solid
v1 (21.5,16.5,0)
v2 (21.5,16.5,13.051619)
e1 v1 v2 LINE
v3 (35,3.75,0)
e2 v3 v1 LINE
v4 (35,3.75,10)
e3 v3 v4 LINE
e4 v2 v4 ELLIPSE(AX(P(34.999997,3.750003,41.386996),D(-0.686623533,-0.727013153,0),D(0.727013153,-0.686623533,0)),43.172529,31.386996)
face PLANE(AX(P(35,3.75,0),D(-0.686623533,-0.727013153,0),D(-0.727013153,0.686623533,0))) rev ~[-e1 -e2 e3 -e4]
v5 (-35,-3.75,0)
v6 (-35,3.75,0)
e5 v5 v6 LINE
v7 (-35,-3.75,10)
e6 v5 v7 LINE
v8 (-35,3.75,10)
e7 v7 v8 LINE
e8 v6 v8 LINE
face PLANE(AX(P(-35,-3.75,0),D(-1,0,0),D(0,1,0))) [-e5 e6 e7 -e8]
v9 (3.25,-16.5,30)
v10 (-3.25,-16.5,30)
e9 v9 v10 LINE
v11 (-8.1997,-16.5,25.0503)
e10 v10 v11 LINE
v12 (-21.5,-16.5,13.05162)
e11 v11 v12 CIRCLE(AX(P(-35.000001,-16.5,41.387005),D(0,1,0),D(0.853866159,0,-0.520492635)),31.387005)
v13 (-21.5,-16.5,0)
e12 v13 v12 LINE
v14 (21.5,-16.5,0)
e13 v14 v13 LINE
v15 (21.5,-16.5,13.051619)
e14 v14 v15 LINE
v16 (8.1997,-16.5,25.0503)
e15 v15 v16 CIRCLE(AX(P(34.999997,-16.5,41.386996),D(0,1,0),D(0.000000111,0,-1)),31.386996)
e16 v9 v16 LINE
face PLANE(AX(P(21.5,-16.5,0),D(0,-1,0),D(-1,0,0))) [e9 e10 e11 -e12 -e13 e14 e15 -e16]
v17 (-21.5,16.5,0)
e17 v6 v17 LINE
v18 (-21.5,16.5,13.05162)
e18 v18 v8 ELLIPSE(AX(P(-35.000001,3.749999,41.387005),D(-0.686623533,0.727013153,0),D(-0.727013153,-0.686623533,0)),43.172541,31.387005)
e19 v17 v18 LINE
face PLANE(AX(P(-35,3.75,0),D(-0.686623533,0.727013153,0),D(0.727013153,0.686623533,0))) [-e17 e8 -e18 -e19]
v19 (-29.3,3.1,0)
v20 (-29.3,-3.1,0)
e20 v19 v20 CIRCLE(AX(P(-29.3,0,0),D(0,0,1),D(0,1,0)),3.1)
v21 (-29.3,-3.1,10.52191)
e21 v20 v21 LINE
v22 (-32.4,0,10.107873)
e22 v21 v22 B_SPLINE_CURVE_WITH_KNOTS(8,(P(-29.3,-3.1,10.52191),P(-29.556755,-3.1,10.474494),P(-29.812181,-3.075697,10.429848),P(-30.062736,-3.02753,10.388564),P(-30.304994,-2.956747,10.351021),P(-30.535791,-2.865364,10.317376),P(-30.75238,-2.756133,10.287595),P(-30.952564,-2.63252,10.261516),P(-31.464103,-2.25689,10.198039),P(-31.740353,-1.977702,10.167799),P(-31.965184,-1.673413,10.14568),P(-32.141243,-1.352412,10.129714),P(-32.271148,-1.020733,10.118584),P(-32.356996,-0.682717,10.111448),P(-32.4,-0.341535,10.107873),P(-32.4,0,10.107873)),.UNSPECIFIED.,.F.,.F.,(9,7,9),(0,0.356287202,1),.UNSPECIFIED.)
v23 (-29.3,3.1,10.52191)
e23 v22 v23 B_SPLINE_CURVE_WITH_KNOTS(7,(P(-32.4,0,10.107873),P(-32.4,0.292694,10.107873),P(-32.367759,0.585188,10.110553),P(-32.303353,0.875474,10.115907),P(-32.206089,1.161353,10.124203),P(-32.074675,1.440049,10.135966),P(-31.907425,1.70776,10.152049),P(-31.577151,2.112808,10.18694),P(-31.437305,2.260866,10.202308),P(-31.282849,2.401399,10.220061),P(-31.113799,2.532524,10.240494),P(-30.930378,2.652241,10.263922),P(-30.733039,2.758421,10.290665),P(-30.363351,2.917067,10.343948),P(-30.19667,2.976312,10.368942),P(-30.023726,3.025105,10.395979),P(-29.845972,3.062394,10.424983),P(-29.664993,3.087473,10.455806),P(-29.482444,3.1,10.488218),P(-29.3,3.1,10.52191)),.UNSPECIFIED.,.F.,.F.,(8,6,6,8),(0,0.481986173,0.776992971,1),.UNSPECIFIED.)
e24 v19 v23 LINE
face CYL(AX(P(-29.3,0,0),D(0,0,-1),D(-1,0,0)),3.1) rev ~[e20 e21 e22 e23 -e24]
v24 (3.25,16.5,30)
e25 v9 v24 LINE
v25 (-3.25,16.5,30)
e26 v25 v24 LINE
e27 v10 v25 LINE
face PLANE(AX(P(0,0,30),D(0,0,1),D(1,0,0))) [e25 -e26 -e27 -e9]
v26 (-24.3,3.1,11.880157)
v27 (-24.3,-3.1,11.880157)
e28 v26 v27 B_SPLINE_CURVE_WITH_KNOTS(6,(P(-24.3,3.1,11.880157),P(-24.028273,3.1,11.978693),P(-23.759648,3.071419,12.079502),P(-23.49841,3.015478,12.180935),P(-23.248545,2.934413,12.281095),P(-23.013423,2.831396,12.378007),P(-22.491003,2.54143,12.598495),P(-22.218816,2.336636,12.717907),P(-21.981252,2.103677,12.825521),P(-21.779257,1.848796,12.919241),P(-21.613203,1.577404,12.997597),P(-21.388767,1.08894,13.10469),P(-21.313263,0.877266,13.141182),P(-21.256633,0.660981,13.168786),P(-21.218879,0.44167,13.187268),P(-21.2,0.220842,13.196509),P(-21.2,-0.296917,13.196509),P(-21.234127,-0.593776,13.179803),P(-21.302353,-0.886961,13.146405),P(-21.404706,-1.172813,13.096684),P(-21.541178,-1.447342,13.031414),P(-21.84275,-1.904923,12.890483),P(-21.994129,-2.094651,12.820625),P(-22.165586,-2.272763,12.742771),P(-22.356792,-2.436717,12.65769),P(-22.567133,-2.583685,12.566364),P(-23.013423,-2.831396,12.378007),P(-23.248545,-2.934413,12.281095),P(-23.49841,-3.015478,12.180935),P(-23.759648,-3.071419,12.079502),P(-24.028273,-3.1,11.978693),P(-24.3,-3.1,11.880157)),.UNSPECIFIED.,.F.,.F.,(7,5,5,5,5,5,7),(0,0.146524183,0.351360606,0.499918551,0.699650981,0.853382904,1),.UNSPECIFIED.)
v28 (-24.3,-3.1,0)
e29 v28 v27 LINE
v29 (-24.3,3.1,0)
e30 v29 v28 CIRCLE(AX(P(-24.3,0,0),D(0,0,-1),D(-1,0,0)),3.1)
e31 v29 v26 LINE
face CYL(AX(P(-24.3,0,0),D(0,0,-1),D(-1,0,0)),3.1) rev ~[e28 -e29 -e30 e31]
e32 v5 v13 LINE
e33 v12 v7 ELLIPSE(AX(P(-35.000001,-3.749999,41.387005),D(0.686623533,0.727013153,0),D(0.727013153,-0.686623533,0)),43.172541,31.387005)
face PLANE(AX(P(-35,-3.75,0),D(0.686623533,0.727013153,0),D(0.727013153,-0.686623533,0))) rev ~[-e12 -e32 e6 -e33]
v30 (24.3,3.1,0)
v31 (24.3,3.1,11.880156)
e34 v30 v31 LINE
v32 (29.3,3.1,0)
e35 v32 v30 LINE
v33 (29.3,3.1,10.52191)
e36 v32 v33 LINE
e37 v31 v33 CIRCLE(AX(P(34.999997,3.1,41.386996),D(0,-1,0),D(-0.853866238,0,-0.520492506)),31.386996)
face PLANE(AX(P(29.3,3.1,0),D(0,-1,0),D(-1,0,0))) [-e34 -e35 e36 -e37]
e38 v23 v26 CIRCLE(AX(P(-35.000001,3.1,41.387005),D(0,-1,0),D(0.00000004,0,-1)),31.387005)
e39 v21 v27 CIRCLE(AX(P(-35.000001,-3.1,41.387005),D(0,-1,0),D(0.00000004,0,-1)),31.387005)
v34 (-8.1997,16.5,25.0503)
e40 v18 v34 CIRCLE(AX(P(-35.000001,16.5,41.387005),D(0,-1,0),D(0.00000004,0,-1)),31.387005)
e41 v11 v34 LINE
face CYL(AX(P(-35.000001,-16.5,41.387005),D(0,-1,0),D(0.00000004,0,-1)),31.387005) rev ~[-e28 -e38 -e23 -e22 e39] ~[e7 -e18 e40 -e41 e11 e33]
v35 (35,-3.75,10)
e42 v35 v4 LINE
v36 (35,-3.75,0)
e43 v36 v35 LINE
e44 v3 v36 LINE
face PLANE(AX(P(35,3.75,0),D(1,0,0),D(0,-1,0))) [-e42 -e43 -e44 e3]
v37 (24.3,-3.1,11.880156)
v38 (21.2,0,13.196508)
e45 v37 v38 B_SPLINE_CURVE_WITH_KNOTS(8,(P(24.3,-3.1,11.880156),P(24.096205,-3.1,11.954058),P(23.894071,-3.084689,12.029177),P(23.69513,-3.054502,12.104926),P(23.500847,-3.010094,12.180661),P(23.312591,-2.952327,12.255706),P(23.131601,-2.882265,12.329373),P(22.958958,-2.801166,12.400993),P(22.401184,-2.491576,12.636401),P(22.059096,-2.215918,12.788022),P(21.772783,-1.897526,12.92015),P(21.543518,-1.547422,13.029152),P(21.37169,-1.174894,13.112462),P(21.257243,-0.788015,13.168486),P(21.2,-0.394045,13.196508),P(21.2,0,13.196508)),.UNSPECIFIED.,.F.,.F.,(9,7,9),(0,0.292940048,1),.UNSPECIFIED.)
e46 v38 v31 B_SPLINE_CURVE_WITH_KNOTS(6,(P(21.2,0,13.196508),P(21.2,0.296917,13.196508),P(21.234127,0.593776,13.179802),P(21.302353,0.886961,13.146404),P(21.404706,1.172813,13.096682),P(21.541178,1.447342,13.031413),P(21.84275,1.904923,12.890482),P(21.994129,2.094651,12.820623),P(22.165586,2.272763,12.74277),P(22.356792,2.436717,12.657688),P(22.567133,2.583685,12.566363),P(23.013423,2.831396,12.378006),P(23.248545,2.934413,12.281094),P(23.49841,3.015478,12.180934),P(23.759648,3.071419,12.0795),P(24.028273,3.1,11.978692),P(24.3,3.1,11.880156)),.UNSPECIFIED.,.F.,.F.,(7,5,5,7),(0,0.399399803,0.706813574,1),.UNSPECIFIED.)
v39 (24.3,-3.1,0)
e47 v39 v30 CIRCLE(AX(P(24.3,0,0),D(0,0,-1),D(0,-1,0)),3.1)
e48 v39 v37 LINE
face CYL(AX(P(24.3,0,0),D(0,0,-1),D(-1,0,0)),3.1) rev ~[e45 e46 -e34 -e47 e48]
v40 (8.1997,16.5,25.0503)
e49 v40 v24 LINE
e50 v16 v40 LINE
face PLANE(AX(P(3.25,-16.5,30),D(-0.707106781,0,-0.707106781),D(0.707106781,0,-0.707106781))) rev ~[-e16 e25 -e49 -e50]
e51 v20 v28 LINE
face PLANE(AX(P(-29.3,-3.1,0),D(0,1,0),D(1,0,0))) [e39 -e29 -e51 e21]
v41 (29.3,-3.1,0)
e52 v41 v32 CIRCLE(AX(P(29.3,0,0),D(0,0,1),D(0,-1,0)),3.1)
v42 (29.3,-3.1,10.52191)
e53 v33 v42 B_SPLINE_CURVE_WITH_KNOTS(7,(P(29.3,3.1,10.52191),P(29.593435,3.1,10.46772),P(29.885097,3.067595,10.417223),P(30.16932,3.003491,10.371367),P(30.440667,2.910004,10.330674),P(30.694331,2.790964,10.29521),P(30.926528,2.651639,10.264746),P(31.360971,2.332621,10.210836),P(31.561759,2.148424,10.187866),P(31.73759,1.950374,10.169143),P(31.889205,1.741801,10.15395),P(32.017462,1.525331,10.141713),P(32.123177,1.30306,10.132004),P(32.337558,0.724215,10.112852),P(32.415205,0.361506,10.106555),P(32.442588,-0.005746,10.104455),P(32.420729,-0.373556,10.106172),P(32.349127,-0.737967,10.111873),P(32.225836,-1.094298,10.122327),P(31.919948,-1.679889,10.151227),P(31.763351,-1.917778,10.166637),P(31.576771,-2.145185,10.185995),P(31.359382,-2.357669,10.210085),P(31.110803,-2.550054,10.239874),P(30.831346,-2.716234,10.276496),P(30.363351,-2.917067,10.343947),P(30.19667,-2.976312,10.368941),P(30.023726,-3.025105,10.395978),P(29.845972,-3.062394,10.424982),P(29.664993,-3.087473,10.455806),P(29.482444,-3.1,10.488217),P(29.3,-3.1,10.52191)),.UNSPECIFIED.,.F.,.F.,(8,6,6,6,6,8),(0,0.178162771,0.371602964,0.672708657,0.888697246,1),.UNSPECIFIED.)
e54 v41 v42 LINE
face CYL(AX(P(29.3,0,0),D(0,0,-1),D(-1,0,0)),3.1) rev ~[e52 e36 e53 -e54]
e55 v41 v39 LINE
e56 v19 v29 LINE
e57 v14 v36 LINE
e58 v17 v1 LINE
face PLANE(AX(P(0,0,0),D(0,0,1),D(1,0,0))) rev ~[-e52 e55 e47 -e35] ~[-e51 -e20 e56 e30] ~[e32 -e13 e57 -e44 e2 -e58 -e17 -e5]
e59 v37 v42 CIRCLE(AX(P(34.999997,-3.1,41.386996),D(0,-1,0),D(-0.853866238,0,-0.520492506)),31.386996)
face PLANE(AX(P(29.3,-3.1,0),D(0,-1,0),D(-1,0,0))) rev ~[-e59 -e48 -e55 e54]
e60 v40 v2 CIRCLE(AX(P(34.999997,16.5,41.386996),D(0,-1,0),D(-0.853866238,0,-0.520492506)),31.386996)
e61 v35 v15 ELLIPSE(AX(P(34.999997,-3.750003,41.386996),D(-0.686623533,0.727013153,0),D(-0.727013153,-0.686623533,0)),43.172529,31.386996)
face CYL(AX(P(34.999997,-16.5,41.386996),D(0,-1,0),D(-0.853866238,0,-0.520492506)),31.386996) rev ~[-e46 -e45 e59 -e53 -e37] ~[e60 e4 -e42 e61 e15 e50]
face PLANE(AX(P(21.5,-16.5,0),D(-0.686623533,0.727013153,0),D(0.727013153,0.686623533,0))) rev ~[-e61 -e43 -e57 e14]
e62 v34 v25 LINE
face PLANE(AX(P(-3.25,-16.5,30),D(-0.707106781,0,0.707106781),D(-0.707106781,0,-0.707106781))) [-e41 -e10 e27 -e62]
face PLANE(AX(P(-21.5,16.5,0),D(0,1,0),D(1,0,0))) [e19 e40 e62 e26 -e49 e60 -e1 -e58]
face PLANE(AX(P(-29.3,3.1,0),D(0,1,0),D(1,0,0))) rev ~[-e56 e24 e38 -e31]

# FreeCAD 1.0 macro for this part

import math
import FreeCAD as App
import Part
import Sketcher

V = App.Vector
Q = App.Units.Quantity

doc = App.newDocument("Part")
body = doc.addObject("PartDesign::Body", "Body")

sketch1 = doc.addObject("Sketcher::SketchObject", "Sketch")
body.addObject(sketch1)
sketch1.AttachmentSupport = (doc.XY_Plane, [""])
sketch1.MapMode = "FlatFace"
sketch1.addGeometry([
    Part.LineSegment(V(21.5, -16.5, 0), V(35, -3.75, 0)),
    Part.LineSegment(V(35, -3.75, 0), V(35, 3.75, 0)),
    Part.LineSegment(V(35, 3.75, 0), V(21.5, 16.5, 0)),
    Part.LineSegment(V(21.5, 16.5, 0), V(-21.5, 16.5, 0)),
    Part.LineSegment(V(-21.5, 16.5, 0), V(-35, 3.75, 0)),
    Part.LineSegment(V(-35, 3.75, 0), V(-35, -3.75, 0)),
    Part.LineSegment(V(-35, -3.75, 0), V(-21.5, -16.5, 0)),
    Part.LineSegment(V(-21.5, -16.5, 0), V(21.5, -16.5, 0)),
], False)
sketch1.addConstraint([
    Sketcher.Constraint("Coincident", 0, 2, 1, 1),
    Sketcher.Constraint("Coincident", 1, 2, 2, 1),
    Sketcher.Constraint("Coincident", 2, 2, 3, 1),
    Sketcher.Constraint("Coincident", 3, 2, 4, 1),
    Sketcher.Constraint("Coincident", 4, 2, 5, 1),
    Sketcher.Constraint("Coincident", 5, 2, 6, 1),
    Sketcher.Constraint("Coincident", 6, 2, 7, 1),
    Sketcher.Constraint("Coincident", 7, 2, 0, 1),
    Sketcher.Constraint("Vertical", 1),
    Sketcher.Constraint("Horizontal", 3),
    Sketcher.Constraint("Vertical", 5),
    Sketcher.Constraint("Horizontal", 7),
    Sketcher.Constraint("Symmetric", 0, 2, 4, 2, -1, 1),
    Sketcher.Constraint("Symmetric", 2, 2, 6, 2, -1, 1),
    Sketcher.Constraint("Parallel", 0, 4),
    Sketcher.Constraint("Parallel", 2, 6),
    Sketcher.Constraint("Horizontal", 1, 2, 4, 2),
    Sketcher.Constraint("Vertical", 3, 2, 6, 2),
    Sketcher.Constraint("DistanceX", 3, 2, 3, 1, Q("43 mm")),
    Sketcher.Constraint("DistanceY", 1, 1, 1, 2, Q("7.5 mm")),
    Sketcher.Constraint("DistanceX", 4, 2, 1, 2, Q("70 mm")),
    Sketcher.Constraint("DistanceY", 6, 2, 3, 2, Q("33 mm")),
])
pad1 = doc.addObject("PartDesign::Pad", "Pad")
body.addObject(pad1)
pad1.Profile = sketch1
pad1.Length = 30

sketch2 = doc.addObject("Sketcher::SketchObject", "Sketch001")
body.addObject(sketch2)
sketch2.AttachmentSupport = (doc.XZ_Plane, [""])
sketch2.MapMode = "FlatFace"
sketch2.AttachmentOffset = App.Placement(V(0, 0, 16.5), App.Rotation())
sketch2.addGeometry([
    Part.ArcOfCircle(Part.Circle(V(35, 41.387, 0), V(0, 0, 1), 31.386992), math.radians(-148.634704), math.radians(-90)),
    Part.LineSegment(V(35, 10, 0), V(35, 30, 0)),
    Part.LineSegment(V(35, 30, 0), V(3.25, 30, 0)),
    Part.LineSegment(V(3.25, 30, 0), V(8.1997, 25.0503, 0)),
    Part.LineSegment(V(-8.1997, 25.0503, 0), V(-3.25, 30, 0)),
    Part.LineSegment(V(-3.25, 30, 0), V(-35, 30, 0)),
    Part.LineSegment(V(-35, 30, 0), V(-35, 10, 0)),
    Part.ArcOfCircle(Part.Circle(V(-35, 41.387, 0), V(0, 0, 1), 31.387), math.radians(-90), math.radians(-31.365296)),
], False)
sketch2.addConstraint([
    Sketcher.Constraint("Coincident", 0, 2, 1, 1),
    Sketcher.Constraint("Coincident", 1, 2, 2, 1),
    Sketcher.Constraint("Coincident", 2, 2, 3, 1),
    Sketcher.Constraint("Coincident", 3, 2, 0, 1),
    Sketcher.Constraint("Coincident", 4, 2, 5, 1),
    Sketcher.Constraint("Coincident", 5, 2, 6, 1),
    Sketcher.Constraint("Coincident", 6, 2, 7, 1),
    Sketcher.Constraint("Coincident", 7, 2, 4, 1),
    Sketcher.Constraint("Vertical", 1),
    Sketcher.Constraint("Horizontal", 2),
    Sketcher.Constraint("Horizontal", 5),
    Sketcher.Constraint("Vertical", 6),
    Sketcher.Constraint("Equal", 0, 7),
    Sketcher.Constraint("Symmetric", 0, 3, 7, 3, -2),
    Sketcher.Constraint("Symmetric", 2, 2, 4, 2, -2),
    Sketcher.Constraint("Perpendicular", 3, 4),
    Sketcher.Constraint("Horizontal", 3, 2, 7, 2),
    Sketcher.Constraint("Vertical", 7, 3, 5, 2),
    Sketcher.Constraint("Equal", 2, 5),
    Sketcher.Constraint("Distance", 3, Q("7 mm")),
    Sketcher.Constraint("DistanceY", -1, 1, 0, 2, Q("10 mm")),
    Sketcher.Constraint("DistanceY", 1, 1, 1, 2, Q("20 mm")),
    Sketcher.Constraint("DistanceX", -1, 1, 2, 2, Q("3.25 mm")),
    Sketcher.Constraint("DistanceX", -1, 1, 0, 3, Q("35 mm")),
])
pocket1 = doc.addObject("PartDesign::Pocket", "Pocket")
body.addObject(pocket1)
pocket1.Profile = sketch2
pocket1.Length = 36.35

sketch3 = doc.addObject("Sketcher::SketchObject", "Sketch002")
body.addObject(sketch3)
sketch3.AttachmentSupport = (doc.XY_Plane, [""])
sketch3.MapMode = "FlatFace"
sketch3.addGeometry([
    Part.LineSegment(V(-29.3, 3.1, 0), V(-24.3, 3.1, 0)),
    Part.ArcOfCircle(Part.Circle(V(-24.3, 0, 0), V(0, 0, 1), 3.1), math.radians(-90), math.radians(90)),
    Part.LineSegment(V(-24.3, -3.1, 0), V(-29.3, -3.1, 0)),
    Part.ArcOfCircle(Part.Circle(V(-29.3, 0, 0), V(0, 0, 1), 3.1), math.radians(90), math.radians(270)),
    Part.ArcOfCircle(Part.Circle(V(29.3, 0, 0), V(0, 0, 1), 3.1), math.radians(-90), math.radians(90)),
    Part.LineSegment(V(29.3, -3.1, 0), V(24.3, -3.1, 0)),
    Part.ArcOfCircle(Part.Circle(V(24.3, 0, 0), V(0, 0, 1), 3.1), math.radians(90), math.radians(270)),
    Part.LineSegment(V(24.3, 3.1, 0), V(29.3, 3.1, 0)),
], False)
sketch3.addConstraint([
    Sketcher.Constraint("Tangent", 0, 2, 1, 2),
    Sketcher.Constraint("Tangent", 1, 1, 2, 1),
    Sketcher.Constraint("Tangent", 2, 2, 3, 2),
    Sketcher.Constraint("Tangent", 3, 1, 0, 1),
    Sketcher.Constraint("Tangent", 4, 1, 5, 1),
    Sketcher.Constraint("Tangent", 5, 2, 6, 2),
    Sketcher.Constraint("Tangent", 6, 1, 7, 1),
    Sketcher.Constraint("Tangent", 7, 2, 4, 2),
    Sketcher.Constraint("Horizontal", 0),
    Sketcher.Constraint("Horizontal", 2),
    Sketcher.Constraint("Horizontal", 5),
    Sketcher.Constraint("Horizontal", 7),
    Sketcher.Constraint("Equal", 3, 4),
    Sketcher.Constraint("Symmetric", 3, 3, 4, 3, -1, 1),
    Sketcher.Constraint("Symmetric", 1, 3, 6, 3, -2),
    Sketcher.Constraint("Radius", 1, Q("3.1 mm")),
    Sketcher.Constraint("DistanceX", 0, 1, 0, 2, Q("5 mm")),
    Sketcher.Constraint("DistanceX", 1, 3, -1, 1, Q("24.3 mm")),
])
pocket2 = doc.addObject("PartDesign::Pocket", "Pocket001")
body.addObject(pocket2)
pocket2.Profile = sketch3
pocket2.Length = 36.35
pocket2.Reversed = True

doc.recompute()
